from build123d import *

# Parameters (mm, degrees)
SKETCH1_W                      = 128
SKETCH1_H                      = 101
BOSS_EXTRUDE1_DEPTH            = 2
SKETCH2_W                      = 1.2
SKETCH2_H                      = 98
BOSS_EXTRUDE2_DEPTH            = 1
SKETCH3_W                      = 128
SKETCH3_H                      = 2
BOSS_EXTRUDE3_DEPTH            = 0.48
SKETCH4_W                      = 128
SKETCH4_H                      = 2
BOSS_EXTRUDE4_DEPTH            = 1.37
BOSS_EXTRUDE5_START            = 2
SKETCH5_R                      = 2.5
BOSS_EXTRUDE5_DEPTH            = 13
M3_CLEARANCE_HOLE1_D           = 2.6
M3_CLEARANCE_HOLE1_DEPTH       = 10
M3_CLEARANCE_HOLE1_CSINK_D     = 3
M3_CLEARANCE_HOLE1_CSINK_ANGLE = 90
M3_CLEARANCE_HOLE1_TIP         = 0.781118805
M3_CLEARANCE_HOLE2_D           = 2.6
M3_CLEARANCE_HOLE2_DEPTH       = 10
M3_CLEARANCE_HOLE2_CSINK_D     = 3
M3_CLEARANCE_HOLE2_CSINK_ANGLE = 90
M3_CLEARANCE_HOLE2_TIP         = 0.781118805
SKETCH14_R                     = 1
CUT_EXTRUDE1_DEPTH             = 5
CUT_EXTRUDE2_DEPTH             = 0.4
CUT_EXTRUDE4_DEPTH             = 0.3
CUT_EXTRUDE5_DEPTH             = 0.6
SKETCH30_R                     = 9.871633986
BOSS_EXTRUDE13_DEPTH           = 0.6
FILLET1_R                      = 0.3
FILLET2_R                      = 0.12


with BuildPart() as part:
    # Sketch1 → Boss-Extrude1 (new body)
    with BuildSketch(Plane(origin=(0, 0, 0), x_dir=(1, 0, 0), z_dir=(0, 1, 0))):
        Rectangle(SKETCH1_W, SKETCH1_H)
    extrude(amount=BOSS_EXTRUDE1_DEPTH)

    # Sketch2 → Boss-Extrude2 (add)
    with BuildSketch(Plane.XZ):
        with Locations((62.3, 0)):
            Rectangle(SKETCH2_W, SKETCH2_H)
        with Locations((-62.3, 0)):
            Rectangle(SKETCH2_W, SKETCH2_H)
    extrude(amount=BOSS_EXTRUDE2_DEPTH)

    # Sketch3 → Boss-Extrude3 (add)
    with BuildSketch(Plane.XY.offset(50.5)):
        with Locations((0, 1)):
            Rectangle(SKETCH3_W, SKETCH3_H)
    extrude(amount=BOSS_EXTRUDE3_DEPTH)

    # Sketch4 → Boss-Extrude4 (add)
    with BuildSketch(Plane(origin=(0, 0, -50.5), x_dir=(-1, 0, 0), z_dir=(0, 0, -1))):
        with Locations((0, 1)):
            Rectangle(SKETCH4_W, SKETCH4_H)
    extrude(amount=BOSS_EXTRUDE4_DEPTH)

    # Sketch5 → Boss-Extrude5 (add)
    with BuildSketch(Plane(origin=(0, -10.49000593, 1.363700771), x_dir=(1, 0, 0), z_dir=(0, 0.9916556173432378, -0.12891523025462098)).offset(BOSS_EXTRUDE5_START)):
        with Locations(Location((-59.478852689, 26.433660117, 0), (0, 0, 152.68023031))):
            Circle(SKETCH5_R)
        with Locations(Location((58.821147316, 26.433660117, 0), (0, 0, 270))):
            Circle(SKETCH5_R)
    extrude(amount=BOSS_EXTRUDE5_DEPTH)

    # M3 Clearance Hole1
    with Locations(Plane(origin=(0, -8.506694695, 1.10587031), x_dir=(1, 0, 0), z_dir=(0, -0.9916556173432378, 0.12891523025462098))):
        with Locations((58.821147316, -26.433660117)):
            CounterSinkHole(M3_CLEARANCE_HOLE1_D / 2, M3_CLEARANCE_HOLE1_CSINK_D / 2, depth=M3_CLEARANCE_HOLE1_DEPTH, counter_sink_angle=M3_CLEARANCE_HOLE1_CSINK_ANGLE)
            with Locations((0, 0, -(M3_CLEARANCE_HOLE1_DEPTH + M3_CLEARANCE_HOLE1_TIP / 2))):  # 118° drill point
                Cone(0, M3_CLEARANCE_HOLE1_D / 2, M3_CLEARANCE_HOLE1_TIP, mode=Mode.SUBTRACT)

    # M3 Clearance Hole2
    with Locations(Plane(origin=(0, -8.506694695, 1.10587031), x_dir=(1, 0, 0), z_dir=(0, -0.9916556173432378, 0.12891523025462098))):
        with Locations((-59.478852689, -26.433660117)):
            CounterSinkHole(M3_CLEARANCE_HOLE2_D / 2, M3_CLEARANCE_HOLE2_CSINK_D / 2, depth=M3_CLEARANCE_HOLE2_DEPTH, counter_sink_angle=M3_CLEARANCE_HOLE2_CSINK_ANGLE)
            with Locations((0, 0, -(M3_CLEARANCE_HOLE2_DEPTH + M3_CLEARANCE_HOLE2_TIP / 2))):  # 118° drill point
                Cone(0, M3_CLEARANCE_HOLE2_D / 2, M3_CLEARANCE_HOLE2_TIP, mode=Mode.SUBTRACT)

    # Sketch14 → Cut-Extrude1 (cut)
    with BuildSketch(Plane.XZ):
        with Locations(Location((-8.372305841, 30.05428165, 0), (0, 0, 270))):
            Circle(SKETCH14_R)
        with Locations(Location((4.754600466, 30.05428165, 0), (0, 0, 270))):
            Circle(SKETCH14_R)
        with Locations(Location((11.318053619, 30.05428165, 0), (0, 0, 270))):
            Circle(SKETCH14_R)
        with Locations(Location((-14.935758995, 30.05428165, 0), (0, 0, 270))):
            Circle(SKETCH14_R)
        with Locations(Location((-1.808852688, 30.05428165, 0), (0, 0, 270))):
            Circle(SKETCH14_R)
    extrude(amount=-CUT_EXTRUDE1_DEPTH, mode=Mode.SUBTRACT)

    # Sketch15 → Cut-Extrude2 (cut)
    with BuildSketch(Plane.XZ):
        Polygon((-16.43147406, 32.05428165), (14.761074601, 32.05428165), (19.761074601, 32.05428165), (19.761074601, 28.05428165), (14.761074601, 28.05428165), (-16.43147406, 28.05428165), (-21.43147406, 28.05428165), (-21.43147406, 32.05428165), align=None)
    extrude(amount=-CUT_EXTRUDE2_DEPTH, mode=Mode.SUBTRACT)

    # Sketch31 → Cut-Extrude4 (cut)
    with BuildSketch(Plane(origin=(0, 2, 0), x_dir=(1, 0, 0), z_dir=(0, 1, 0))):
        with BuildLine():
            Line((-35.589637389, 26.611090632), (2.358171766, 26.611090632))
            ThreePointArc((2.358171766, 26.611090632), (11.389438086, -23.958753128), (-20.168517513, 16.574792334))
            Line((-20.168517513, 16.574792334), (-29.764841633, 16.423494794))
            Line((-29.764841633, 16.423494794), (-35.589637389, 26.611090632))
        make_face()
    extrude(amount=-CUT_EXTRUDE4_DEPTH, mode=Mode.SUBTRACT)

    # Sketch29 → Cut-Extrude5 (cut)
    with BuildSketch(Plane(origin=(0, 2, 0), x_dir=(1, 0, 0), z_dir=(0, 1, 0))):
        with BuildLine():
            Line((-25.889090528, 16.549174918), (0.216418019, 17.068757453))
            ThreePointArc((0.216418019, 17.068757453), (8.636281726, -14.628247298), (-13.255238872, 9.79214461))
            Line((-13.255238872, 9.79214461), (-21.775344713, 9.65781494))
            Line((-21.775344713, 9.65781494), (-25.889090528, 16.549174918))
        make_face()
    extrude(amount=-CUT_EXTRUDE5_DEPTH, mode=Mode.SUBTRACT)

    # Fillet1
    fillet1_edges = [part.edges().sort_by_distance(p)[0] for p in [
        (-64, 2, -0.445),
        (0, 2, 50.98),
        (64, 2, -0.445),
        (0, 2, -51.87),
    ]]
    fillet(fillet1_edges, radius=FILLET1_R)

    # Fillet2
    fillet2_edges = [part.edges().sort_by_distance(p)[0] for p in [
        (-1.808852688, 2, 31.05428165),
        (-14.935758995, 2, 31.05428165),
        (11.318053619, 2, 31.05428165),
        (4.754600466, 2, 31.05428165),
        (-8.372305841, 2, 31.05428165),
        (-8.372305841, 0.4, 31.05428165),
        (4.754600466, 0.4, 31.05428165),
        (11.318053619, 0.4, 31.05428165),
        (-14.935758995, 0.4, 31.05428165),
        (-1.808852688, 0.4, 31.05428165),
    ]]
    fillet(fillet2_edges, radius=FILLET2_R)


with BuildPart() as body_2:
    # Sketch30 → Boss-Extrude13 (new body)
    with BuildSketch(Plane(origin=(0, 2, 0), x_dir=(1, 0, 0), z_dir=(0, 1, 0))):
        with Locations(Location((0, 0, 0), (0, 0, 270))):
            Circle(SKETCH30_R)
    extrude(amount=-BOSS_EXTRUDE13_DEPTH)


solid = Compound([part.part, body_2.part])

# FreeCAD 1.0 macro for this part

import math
import FreeCAD as App
import Part
import Sketcher
Q = App.Units.Quantity


def edges_at(feature, points):
    """Names of the edges that pass closest to the given points."""
    edges = feature.Shape.Edges
    near = lambda p: min(range(len(edges)), key=lambda i: edges[i].distToShape(Part.Vertex(*p))[0])
    return sorted({f"Edge{near(p) + 1}" for p in points})

doc = App.newDocument("Part")
params = doc.addObject("Spreadsheet::Sheet", "Params")
for row, (alias, value) in enumerate([
    ("sketch1_width", "128 mm"),
    ("sketch1_height", "101 mm"),
    ("pad1_length", "2 mm"),
    ("sketch2_height", "98 mm"),
    ("sketch2_width", "1.2 mm"),
    ("pad2_length", "1 mm"),
    ("sketch3_width", "128 mm"),
    ("sketch3_height", "2 mm"),
    ("pad3_length", "0.48 mm"),
    ("sketch4_width", "128 mm"),
    ("sketch4_height", "2 mm"),
    ("pad4_length", "1.37 mm"),
    ("sketch5_diameter", "5 mm"),
    ("pad5_length", "13 mm"),
    ("sketch6_diameter", "2.6 mm"),
    ("hole_diameter", "2.6 mm"),
    ("hole_depth", "10 mm"),
    ("hole_csink_diameter", "3 mm"),
    ("sketch7_diameter", "2.6 mm"),
    ("hole2_diameter", "2.6 mm"),
    ("hole2_depth", "10 mm"),
    ("hole2_csink_diameter", "3 mm"),
    ("sketch8_diameter", "2 mm"),
    ("pocket1_length", "5 mm"),
    ("sketch9_height", "4 mm"),
    ("pocket2_length", "0.4 mm"),
    ("pocket3_length", "0.3 mm"),
    ("pocket4_length", "0.6 mm"),
    ("fillet_radius", "0.3 mm"),
    ("fillet2_radius", "0.12 mm"),
    ("pad6_length", "0.6 mm"),
], start=1):
    params.set(f"A{row}", alias)
    params.set(f"B{row}", "=" + value)
    params.setAlias(f"B{row}", alias)

body = doc.addObject("PartDesign::Body", "Body")

# Sketch on XZ plane
sketch1 = body.newObject("Sketcher::SketchObject", "Sketch")
sketch1.AttachmentSupport = (doc.getObject("XZ_Plane"), [""])
sketch1.MapMode = "FlatFace"
sketch1.addGeometry([
    Part.LineSegment(App.Vector(-64, -50.5, 0), App.Vector(-64, 50.5, 0)),
    Part.LineSegment(App.Vector(-64, 50.5, 0), App.Vector(64, 50.5, 0)),
    Part.LineSegment(App.Vector(64, 50.5, 0), App.Vector(64, -50.5, 0)),
    Part.LineSegment(App.Vector(64, -50.5, 0), App.Vector(-64, -50.5, 0)),
], False)
sketch1.addConstraint([
    Sketcher.Constraint("Coincident", 0, 2, 1, 1),
    Sketcher.Constraint("Coincident", 1, 2, 2, 1),
    Sketcher.Constraint("Coincident", 2, 2, 3, 1),
    Sketcher.Constraint("Coincident", 3, 2, 0, 1),
    Sketcher.Constraint("Vertical", 0),
    Sketcher.Constraint("Horizontal", 1),
    Sketcher.Constraint("Vertical", 2),
    Sketcher.Constraint("Horizontal", 3),
    Sketcher.Constraint("Symmetric", 0, 2, 2, 2, -1, 1),
    Sketcher.Constraint("DistanceX", 1, 1, 1, 2, Q("128 mm")),
    Sketcher.Constraint("DistanceY", 0, 1, 0, 2, Q("101 mm")),
])
sketch1.setExpression("Constraints[9]", "Params.sketch1_width")
sketch1.setExpression("Constraints[10]", "Params.sketch1_height")
pad1 = body.newObject("PartDesign::Pad", "Pad")
pad1.Profile = sketch1
pad1.setExpression("Length", "Params.pad1_length")
pad1.Reversed = True

# Sketch on XZ plane
sketch2 = body.newObject("Sketcher::SketchObject", "Sketch001")
sketch2.AttachmentSupport = (doc.getObject("XZ_Plane"), [""])
sketch2.MapMode = "FlatFace"
sketch2.addGeometry([
    Part.LineSegment(App.Vector(61.7, 49, 0), App.Vector(61.7, -49, 0)),  # 0
    Part.LineSegment(App.Vector(61.7, -49, 0), App.Vector(62.9, -49, 0)),  # 1
    Part.LineSegment(App.Vector(62.9, -49, 0), App.Vector(62.9, 49, 0)),  # 2
    Part.LineSegment(App.Vector(62.9, 49, 0), App.Vector(61.7, 49, 0)),  # 3
    Part.LineSegment(App.Vector(-62.9, 49, 0), App.Vector(-62.9, -49, 0)),  # 4
    Part.LineSegment(App.Vector(-62.9, -49, 0), App.Vector(-61.7, -49, 0)),  # 5
    Part.LineSegment(App.Vector(-61.7, -49, 0), App.Vector(-61.7, 49, 0)),  # 6
    Part.LineSegment(App.Vector(-61.7, 49, 0), App.Vector(-62.9, 49, 0)),  # 7
], False)
sketch2.addConstraint([
    Sketcher.Constraint("Coincident", 0, 2, 1, 1),
    Sketcher.Constraint("Coincident", 1, 2, 2, 1),
    Sketcher.Constraint("Coincident", 2, 2, 3, 1),
    Sketcher.Constraint("Coincident", 3, 2, 0, 1),
    Sketcher.Constraint("Coincident", 4, 2, 5, 1),
    Sketcher.Constraint("Coincident", 5, 2, 6, 1),
    Sketcher.Constraint("Coincident", 6, 2, 7, 1),
    Sketcher.Constraint("Coincident", 7, 2, 4, 1),
    Sketcher.Constraint("Vertical", 0),
    Sketcher.Constraint("Horizontal", 1),
    Sketcher.Constraint("Vertical", 2),
    Sketcher.Constraint("Horizontal", 3),
    Sketcher.Constraint("Vertical", 4),
    Sketcher.Constraint("Horizontal", 5),
    Sketcher.Constraint("Vertical", 6),
    Sketcher.Constraint("Horizontal", 7),
    Sketcher.Constraint("Symmetric", 2, 2, 4, 2, -1, 1),
    Sketcher.Constraint("Symmetric", 0, 2, 6, 2, -1, 1),
    Sketcher.Constraint("Horizontal", 1, 2, 4, 2),
    Sketcher.Constraint("DistanceY", 0, 2, 0, 1, Q("98 mm")),
    Sketcher.Constraint("DistanceX", 1, 1, 1, 2, Q("1.2 mm")),
    Sketcher.Constraint("DistanceX", -1, 1, 0, 2, Q("61.7 mm")),
])
sketch2.setExpression("Constraints[19]", "Params.sketch2_height")
sketch2.setExpression("Constraints[20]", "Params.sketch2_width")
pad2 = body.newObject("PartDesign::Pad", "Pad001")
pad2.Profile = sketch2
pad2.setExpression("Length", "Params.pad2_length")

# Sketch on XY plane
sketch3 = body.newObject("Sketcher::SketchObject", "Sketch002")
sketch3.AttachmentSupport = (doc.getObject("XY_Plane"), [""])
sketch3.MapMode = "FlatFace"
sketch3.AttachmentOffset = App.Placement(App.Vector(0, 0, 50.5), App.Rotation())
sketch3.addGeometry([
    Part.LineSegment(App.Vector(-64, 2, 0), App.Vector(-64, 0, 0)),
    Part.LineSegment(App.Vector(-64, 0, 0), App.Vector(64, 0, 0)),
    Part.LineSegment(App.Vector(64, 0, 0), App.Vector(64, 2, 0)),
    Part.LineSegment(App.Vector(64, 2, 0), App.Vector(-64, 2, 0)),
], False)
sketch3.addConstraint([
    Sketcher.Constraint("Coincident", 0, 2, 1, 1),
    Sketcher.Constraint("Coincident", 1, 2, 2, 1),
    Sketcher.Constraint("Coincident", 2, 2, 3, 1),
    Sketcher.Constraint("Coincident", 3, 2, 0, 1),
    Sketcher.Constraint("Vertical", 0),
    Sketcher.Constraint("Horizontal", 1),
    Sketcher.Constraint("Vertical", 2),
    Sketcher.Constraint("Horizontal", 3),
    Sketcher.Constraint("Symmetric", 0, 2, 1, 2, -1, 1),
    Sketcher.Constraint("DistanceX", 1, 1, 1, 2, Q("128 mm")),
    Sketcher.Constraint("DistanceY", 0, 2, 0, 1, Q("2 mm")),
])
sketch3.setExpression("Constraints[9]", "Params.sketch3_width")
sketch3.setExpression("Constraints[10]", "Params.sketch3_height")
pad3 = body.newObject("PartDesign::Pad", "Pad002")
pad3.Profile = sketch3
pad3.setExpression("Length", "Params.pad3_length")

# Sketch on XY plane
sketch4 = body.newObject("Sketcher::SketchObject", "Sketch003")
sketch4.AttachmentSupport = (doc.getObject("XY_Plane"), [""])
sketch4.MapMode = "FlatFace"
sketch4.AttachmentOffset = App.Placement(App.Vector(0, 0, -50.5), App.Rotation())
sketch4.addGeometry([
    Part.LineSegment(App.Vector(64, 2, 0), App.Vector(64, 0, 0)),
    Part.LineSegment(App.Vector(64, 0, 0), App.Vector(-64, 0, 0)),
    Part.LineSegment(App.Vector(-64, 0, 0), App.Vector(-64, 2, 0)),
    Part.LineSegment(App.Vector(-64, 2, 0), App.Vector(64, 2, 0)),
], False)
sketch4.addConstraint([
    Sketcher.Constraint("Coincident", 0, 2, 1, 1),
    Sketcher.Constraint("Coincident", 1, 2, 2, 1),
    Sketcher.Constraint("Coincident", 2, 2, 3, 1),
    Sketcher.Constraint("Coincident", 3, 2, 0, 1),
    Sketcher.Constraint("Vertical", 0),
    Sketcher.Constraint("Horizontal", 1),
    Sketcher.Constraint("Vertical", 2),
    Sketcher.Constraint("Horizontal", 3),
    Sketcher.Constraint("Symmetric", 0, 2, 1, 2, -1, 1),
    Sketcher.Constraint("DistanceX", 1, 2, 1, 1, Q("128 mm")),
    Sketcher.Constraint("DistanceY", 0, 2, 0, 1, Q("2 mm")),
])
sketch4.setExpression("Constraints[9]", "Params.sketch4_width")
sketch4.setExpression("Constraints[10]", "Params.sketch4_height")
pad4 = body.newObject("PartDesign::Pad", "Pad003")
pad4.Profile = sketch4
pad4.setExpression("Length", "Params.pad4_length")
pad4.Reversed = True

# Sketch on an angled plane
sketch5 = body.newObject("Sketcher::SketchObject", "Sketch004")
sketch5.Placement = App.Placement(App.Vector(0, -8.506695, 1.10587), App.Rotation(App.Vector(1, 0, 0), App.Vector(0, -0.12891523, -0.991655617), App.Vector(0, 0.991655617, -0.12891523), "ZXY"))
sketch5.addGeometry([
    Part.Circle(App.Vector(-59.478853, 26.43366, 0), App.Vector(0, 0, 1), 2.5),
    Part.Circle(App.Vector(58.821147, 26.43366, 0), App.Vector(0, 0, 1), 2.5),
], False)
sketch5.addConstraint([
    Sketcher.Constraint("Equal", 0, 1),
    Sketcher.Constraint("Horizontal", 0, 3, 1, 3),
    Sketcher.Constraint("Diameter", 0, Q("5 mm")),
    Sketcher.Constraint("DistanceX", 0, 3, 1, 3, Q("118.3 mm")),
    Sketcher.Constraint("DistanceY", -1, 1, 0, 3, Q("26.43366 mm")),
    Sketcher.Constraint("DistanceX", 0, 3, -1, 1, Q("59.478853 mm")),
])
sketch5.setExpression("Constraints[2]", "Params.sketch5_diameter")
pad5 = body.newObject("PartDesign::Pad", "Pad004")
pad5.Profile = sketch5
pad5.setExpression("Length", "Params.pad5_length")

# Sketch on an angled plane
sketch6 = body.newObject("Sketcher::SketchObject", "Sketch005")
sketch6.Placement = App.Placement(App.Vector(0, -8.506695, 1.10587), App.Rotation(App.Vector(1, 0, 0), App.Vector(0, 0.12891523, 0.991655617), App.Vector(0, -0.991655617, 0.12891523), "ZXY"))
sketch6.addGeometry(Part.Circle(App.Vector(58.821147, -26.43366, 0), App.Vector(0, 0, 1), 1.3), False)
sketch6.addConstraint([
    Sketcher.Constraint("Diameter", 0, Q("2.6 mm")),
    Sketcher.Constraint("DistanceY", 0, 3, -1, 1, Q("26.43366 mm")),
    Sketcher.Constraint("DistanceX", -1, 1, 0, 3, Q("58.821147 mm")),
])
sketch6.setExpression("Constraints[0]", "Params.sketch6_diameter")
doc.recompute()
hole = body.newObject("PartDesign::Hole", "Hole")
hole.Profile = sketch6
hole.ThreadType = "None"
hole.setExpression("Diameter", "Params.hole_diameter")
hole.DepthType = "Dimension"
hole.setExpression("Depth", "Params.hole_depth")
hole.DrillPoint = "Angled"
hole.DrillPointAngle = 118
hole.HoleCutType = "Countersink"
hole.setExpression("HoleCutDiameter", "Params.hole_csink_diameter")
hole.HoleCutCountersinkAngle = 90

# Sketch on an angled plane
sketch7 = body.newObject("Sketcher::SketchObject", "Sketch006")
sketch7.Placement = App.Placement(App.Vector(0, -8.506695, 1.10587), App.Rotation(App.Vector(1, 0, 0), App.Vector(0, 0.12891523, 0.991655617), App.Vector(0, -0.991655617, 0.12891523), "ZXY"))
sketch7.addGeometry(Part.Circle(App.Vector(-59.478853, -26.43366, 0), App.Vector(0, 0, 1), 1.3), False)
sketch7.addConstraint([
    Sketcher.Constraint("Diameter", 0, Q("2.6 mm")),
    Sketcher.Constraint("DistanceY", 0, 3, -1, 1, Q("26.43366 mm")),
    Sketcher.Constraint("DistanceX", 0, 3, -1, 1, Q("59.478853 mm")),
])
sketch7.setExpression("Constraints[0]", "Params.sketch7_diameter")
doc.recompute()
hole2 = body.newObject("PartDesign::Hole", "Hole001")
hole2.Profile = sketch7
hole2.ThreadType = "None"
hole2.setExpression("Diameter", "Params.hole2_diameter")
hole2.DepthType = "Dimension"
hole2.setExpression("Depth", "Params.hole2_depth")
hole2.DrillPoint = "Angled"
hole2.DrillPointAngle = 118
hole2.HoleCutType = "Countersink"
hole2.setExpression("HoleCutDiameter", "Params.hole2_csink_diameter")
hole2.HoleCutCountersinkAngle = 90

# Sketch on XZ plane
sketch8 = body.newObject("Sketcher::SketchObject", "Sketch007")
sketch8.AttachmentSupport = (doc.getObject("XZ_Plane"), [""])
sketch8.MapMode = "FlatFace"
sketch8.addGeometry([
    Part.Circle(App.Vector(-8.372306, 30.054282, 0), App.Vector(0, 0, 1), 1),  # 0
    Part.Circle(App.Vector(4.7546, 30.054282, 0), App.Vector(0, 0, 1), 1),  # 1
    Part.Circle(App.Vector(11.318054, 30.054282, 0), App.Vector(0, 0, 1), 1),  # 2
    Part.Circle(App.Vector(-14.935759, 30.054282, 0), App.Vector(0, 0, 1), 1),  # 3
    Part.Circle(App.Vector(-1.808853, 30.054282, 0), App.Vector(0, 0, 1), 1),  # 4
], False)
sketch8.addConstraint([
    Sketcher.Constraint("Equal", 0, 1),
    Sketcher.Constraint("Equal", 1, 2),
    Sketcher.Constraint("Equal", 2, 3),
    Sketcher.Constraint("Equal", 3, 4),
    Sketcher.Constraint("Horizontal", 0, 3, 1, 3),
    Sketcher.Constraint("Horizontal", 1, 3, 2, 3),
    Sketcher.Constraint("Horizontal", 2, 3, 3, 3),
    Sketcher.Constraint("Horizontal", 3, 3, 4, 3),
    Sketcher.Constraint("Diameter", 0, Q("2 mm")),
    Sketcher.Constraint("DistanceX", -1, 1, 1, 3, Q("4.7546 mm")),
    Sketcher.Constraint("DistanceY", -1, 1, 0, 3, Q("30.054282 mm")),
    Sketcher.Constraint("DistanceX", 3, 3, -1, 1, Q("14.935759 mm")),
    Sketcher.Constraint("DistanceX", 0, 3, 2, 3, Q("19.690359 mm")),
    Sketcher.Constraint("DistanceX", 0, 3, -1, 1, Q("8.372306 mm")),
    Sketcher.Constraint("DistanceX", 4, 3, -1, 1, Q("1.808853 mm")),
])
sketch8.setExpression("Constraints[8]", "Params.sketch8_diameter")
pocket1 = body.newObject("PartDesign::Pocket", "Pocket")
pocket1.Profile = sketch8
pocket1.setExpression("Length", "Params.pocket1_length")

# Sketch on XZ plane
sketch9 = body.newObject("Sketcher::SketchObject", "Sketch008")
sketch9.AttachmentSupport = (doc.getObject("XZ_Plane"), [""])
sketch9.MapMode = "FlatFace"
sketch9.addGeometry([
    Part.LineSegment(App.Vector(19.761075, 32.054282, 0), App.Vector(-21.431474, 32.054282, 0)),
    Part.LineSegment(App.Vector(-21.431474, 32.054282, 0), App.Vector(-21.431474, 28.054282, 0)),
    Part.LineSegment(App.Vector(-21.431474, 28.054282, 0), App.Vector(19.761075, 28.054282, 0)),
    Part.LineSegment(App.Vector(19.761075, 28.054282, 0), App.Vector(19.761075, 32.054282, 0)),
], False)
sketch9.addConstraint([
    Sketcher.Constraint("Coincident", 0, 2, 1, 1),
    Sketcher.Constraint("Coincident", 1, 2, 2, 1),
    Sketcher.Constraint("Coincident", 2, 2, 3, 1),
    Sketcher.Constraint("Coincident", 3, 2, 0, 1),
    Sketcher.Constraint("Horizontal", 0),
    Sketcher.Constraint("Vertical", 1),
    Sketcher.Constraint("Horizontal", 2),
    Sketcher.Constraint("Vertical", 3),
    Sketcher.Constraint("DistanceY", 1, 2, 1, 1, Q("4 mm")),
    Sketcher.Constraint("DistanceX", 0, 2, 0, 1, Q("41.192549 mm")),
    Sketcher.Constraint("DistanceY", -1, 1, 0, 2, Q("32.054282 mm")),
    Sketcher.Constraint("DistanceX", 0, 2, -1, 1, Q("21.431474 mm")),
])
sketch9.setExpression("Constraints[8]", "Params.sketch9_height")
pocket2 = body.newObject("PartDesign::Pocket", "Pocket001")
pocket2.Profile = sketch9
pocket2.setExpression("Length", "Params.pocket2_length")

# Sketch on XZ plane
sketch10 = body.newObject("Sketcher::SketchObject", "Sketch009")
sketch10.AttachmentSupport = (doc.getObject("XZ_Plane"), [""])
sketch10.MapMode = "FlatFace"
sketch10.AttachmentOffset = App.Placement(App.Vector(0, 0, -2), App.Rotation())
sketch10.addGeometry([
    Part.LineSegment(App.Vector(2.358172, -26.611091, 0), App.Vector(-35.589637, -26.611091, 0)),
    Part.LineSegment(App.Vector(-35.589637, -26.611091, 0), App.Vector(-29.764842, -16.423495, 0)),
    Part.LineSegment(App.Vector(-29.764842, -16.423495, 0), App.Vector(-20.168518, -16.574792, 0)),
    Part.ArcOfCircle(Part.Circle(App.Vector(0.621726, -0.20961, 0), App.Vector(0, 0, 1), 26.458522), math.radians(-86.237032), math.radians(218.208294)),
], False)
sketch10.addConstraint([
    Sketcher.Constraint("Coincident", 0, 2, 1, 1),
    Sketcher.Constraint("Coincident", 1, 2, 2, 1),
    Sketcher.Constraint("Coincident", 2, 2, 3, 2),
    Sketcher.Constraint("Coincident", 3, 1, 0, 1),
    Sketcher.Constraint("Horizontal", 0),
    Sketcher.Constraint("Radius", 3, Q("26.458522 mm")),
    Sketcher.Constraint("DistanceX", 0, 2, 0, 1, Q("37.947809 mm")),
    Sketcher.Constraint("DistanceY", 0, 2, 2, 2, Q("10.036298 mm")),
    Sketcher.Constraint("Distance", 1, Q("11.735219 mm")),
    Sketcher.Constraint("DistanceY", 3, 3, -1, 1, Q("0.20961 mm")),
    Sketcher.Constraint("DistanceY", 0, 2, -1, 1, Q("26.611091 mm")),
    Sketcher.Constraint("DistanceX", 1, 2, -1, 1, Q("29.764842 mm")),
    Sketcher.Constraint("DistanceX", -1, 1, 3, 1, Q("2.358172 mm")),
])
pocket3 = body.newObject("PartDesign::Pocket", "Pocket002")
pocket3.Profile = sketch10
pocket3.setExpression("Length", "Params.pocket3_length")
pocket3.Reversed = True

# Sketch on XZ plane
sketch11 = body.newObject("Sketcher::SketchObject", "Sketch010")
sketch11.AttachmentSupport = (doc.getObject("XZ_Plane"), [""])
sketch11.MapMode = "FlatFace"
sketch11.AttachmentOffset = App.Placement(App.Vector(0, 0, -2), App.Rotation())
sketch11.addGeometry([
    Part.LineSegment(App.Vector(0.216418, -17.068757, 0), App.Vector(-25.889091, -16.549175, 0)),
    Part.LineSegment(App.Vector(-25.889091, -16.549175, 0), App.Vector(-21.775345, -9.657815, 0)),
    Part.LineSegment(App.Vector(-21.775345, -9.657815, 0), App.Vector(-13.255239, -9.792145, 0)),
    Part.ArcOfCircle(Part.Circle(App.Vector(0.621726, -0.20961, 0), App.Vector(0, 0, 1), 16.864018), math.radians(-91.377173), math.radians(214.626449)),
], False)
sketch11.addConstraint([
    Sketcher.Constraint("Coincident", 0, 2, 1, 1),
    Sketcher.Constraint("Coincident", 1, 2, 2, 1),
    Sketcher.Constraint("Coincident", 2, 2, 3, 2),
    Sketcher.Constraint("Coincident", 3, 1, 0, 1),
    Sketcher.Constraint("Radius", 3, Q("16.864018 mm")),
    Sketcher.Constraint("Distance", 0, Q("26.110679 mm")),
    Sketcher.Constraint("DistanceY", 3, 3, -1, 1, Q("0.20961 mm")),
    Sketcher.Constraint("DistanceX", 0, 2, -1, 1, Q("25.889091 mm")),
    Sketcher.Constraint("DistanceX", 2, 2, -1, 1, Q("13.255239 mm")),
    Sketcher.Constraint("DistanceY", 0, 2, 1, 2, Q("6.89136 mm")),
    Sketcher.Constraint("DistanceX", 1, 2, 3, 3, Q("22.397071 mm")),
    Sketcher.Constraint("DistanceY", 2, 2, 1, 2, Q("0.13433 mm")),
    Sketcher.Constraint("Distance", 1, Q("8.025818 mm")),
])
pocket4 = body.newObject("PartDesign::Pocket", "Pocket003")
pocket4.Profile = sketch11
pocket4.setExpression("Length", "Params.pocket4_length")
pocket4.Reversed = True
doc.recompute()

fillet = body.newObject("PartDesign::Fillet", "Fillet")
fillet.Base = (pocket4, edges_at(pocket4, [
    (-64, 2, -0.445),
    (0, 2, 50.98),
    (64, 2, -0.445),
    (0, 2, -51.87),
]))
fillet.setExpression("Radius", "Params.fillet_radius")
doc.recompute()

fillet2 = body.newObject("PartDesign::Fillet", "Fillet001")
fillet2.Base = (fillet, edges_at(fillet, [
    (-1.809, 2, 31.054),
    (-14.936, 2, 31.054),
    (11.318, 2, 31.054),
    (4.755, 2, 31.054),
    (-8.372, 2, 31.054),
    (-8.372, 0.4, 31.054),
    (4.755, 0.4, 31.054),
    (11.318, 0.4, 31.054),
    (-14.936, 0.4, 31.054),
    (-1.809, 0.4, 31.054),
]))
fillet2.setExpression("Radius", "Params.fillet2_radius")
body2 = doc.addObject("PartDesign::Body", "Body001")

# Sketch on XZ plane
sketch12 = body2.newObject("Sketcher::SketchObject", "Sketch011")
sketch12.AttachmentSupport = (doc.getObject("XZ_Plane001"), [""])
sketch12.MapMode = "FlatFace"
sketch12.AttachmentOffset = App.Placement(App.Vector(0, 0, -2), App.Rotation())
sketch12.addGeometry(Part.Circle(App.Vector(0, 0, 0), App.Vector(0, 0, 1), 9.871634), False)
sketch12.addConstraint([
    Sketcher.Constraint("Coincident", 0, 3, -1, 1),
    Sketcher.Constraint("Diameter", 0, Q("19.743268 mm")),
])
pad6 = body2.newObject("PartDesign::Pad", "Pad005")
pad6.Profile = sketch12
pad6.setExpression("Length", "Params.pad6_length")

doc.recompute()
